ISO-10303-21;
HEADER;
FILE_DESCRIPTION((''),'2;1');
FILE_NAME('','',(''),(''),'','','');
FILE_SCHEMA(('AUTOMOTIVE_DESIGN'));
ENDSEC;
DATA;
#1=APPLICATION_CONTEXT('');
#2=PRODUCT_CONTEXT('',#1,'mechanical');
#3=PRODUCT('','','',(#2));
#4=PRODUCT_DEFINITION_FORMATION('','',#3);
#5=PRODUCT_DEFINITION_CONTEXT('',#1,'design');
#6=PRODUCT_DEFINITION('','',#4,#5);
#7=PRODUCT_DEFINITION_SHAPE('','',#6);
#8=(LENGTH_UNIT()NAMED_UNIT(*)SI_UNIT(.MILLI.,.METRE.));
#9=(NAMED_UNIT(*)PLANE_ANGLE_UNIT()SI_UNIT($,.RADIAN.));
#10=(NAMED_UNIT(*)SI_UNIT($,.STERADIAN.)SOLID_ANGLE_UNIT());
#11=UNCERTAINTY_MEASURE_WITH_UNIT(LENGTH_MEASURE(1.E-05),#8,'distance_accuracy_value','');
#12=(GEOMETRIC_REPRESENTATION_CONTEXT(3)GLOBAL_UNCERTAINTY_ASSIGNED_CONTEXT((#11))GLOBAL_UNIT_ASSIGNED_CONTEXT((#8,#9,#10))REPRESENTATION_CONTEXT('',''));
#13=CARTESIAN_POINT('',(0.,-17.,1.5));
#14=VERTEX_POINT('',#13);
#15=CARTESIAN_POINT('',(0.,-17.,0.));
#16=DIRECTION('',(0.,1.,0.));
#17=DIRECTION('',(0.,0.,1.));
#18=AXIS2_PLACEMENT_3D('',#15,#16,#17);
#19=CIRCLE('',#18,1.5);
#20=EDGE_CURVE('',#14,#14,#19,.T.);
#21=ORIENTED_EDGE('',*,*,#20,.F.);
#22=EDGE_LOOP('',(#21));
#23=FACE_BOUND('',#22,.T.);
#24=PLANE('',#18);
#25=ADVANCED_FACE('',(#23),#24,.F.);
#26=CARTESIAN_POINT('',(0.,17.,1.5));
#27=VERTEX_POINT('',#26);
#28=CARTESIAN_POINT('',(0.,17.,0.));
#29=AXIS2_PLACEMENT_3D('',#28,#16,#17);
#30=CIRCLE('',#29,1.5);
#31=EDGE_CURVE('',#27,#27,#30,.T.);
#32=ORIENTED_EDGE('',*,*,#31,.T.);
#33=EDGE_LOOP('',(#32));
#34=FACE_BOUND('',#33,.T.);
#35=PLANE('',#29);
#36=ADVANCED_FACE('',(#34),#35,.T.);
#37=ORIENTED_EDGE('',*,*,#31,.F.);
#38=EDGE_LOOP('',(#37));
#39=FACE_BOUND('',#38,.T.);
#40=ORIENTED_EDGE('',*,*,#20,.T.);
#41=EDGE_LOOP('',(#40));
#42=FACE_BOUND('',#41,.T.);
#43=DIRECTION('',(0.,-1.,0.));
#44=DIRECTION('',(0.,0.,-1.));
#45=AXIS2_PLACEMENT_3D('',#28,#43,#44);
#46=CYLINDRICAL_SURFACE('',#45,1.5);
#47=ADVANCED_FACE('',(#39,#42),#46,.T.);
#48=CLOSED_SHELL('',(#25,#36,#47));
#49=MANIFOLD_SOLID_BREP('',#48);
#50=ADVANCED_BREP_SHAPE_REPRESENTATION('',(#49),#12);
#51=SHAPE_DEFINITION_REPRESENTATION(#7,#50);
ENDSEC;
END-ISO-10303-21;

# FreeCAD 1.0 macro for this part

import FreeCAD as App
import Part
import Sketcher
from FreeCAD import Vector
Q = App.Units.Quantity

doc = App.newDocument("Part")
body = doc.addObject("PartDesign::Body", "Body")

sketch1 = body.newObject("Sketcher::SketchObject", "Sketch")
sketch1.AttachmentSupport = (doc.getObject("XZ_Plane"), [""])
sketch1.MapMode = "FlatFace"
sketch1.addGeometry(Part.Circle(Vector(0, 0, 0), Vector(0, 0, 1), 1.5), False)
sketch1.addConstraint(Sketcher.Constraint("Coincident", 0, 3, -1, 1))
sketch1.addConstraint(Sketcher.Constraint("Diameter", 0, Q("3 mm")))
pad1 = body.newObject("PartDesign::Pad", "Pad")
pad1.Profile = sketch1
pad1.Length = 34
pad1.Midplane = True

doc.recompute()
